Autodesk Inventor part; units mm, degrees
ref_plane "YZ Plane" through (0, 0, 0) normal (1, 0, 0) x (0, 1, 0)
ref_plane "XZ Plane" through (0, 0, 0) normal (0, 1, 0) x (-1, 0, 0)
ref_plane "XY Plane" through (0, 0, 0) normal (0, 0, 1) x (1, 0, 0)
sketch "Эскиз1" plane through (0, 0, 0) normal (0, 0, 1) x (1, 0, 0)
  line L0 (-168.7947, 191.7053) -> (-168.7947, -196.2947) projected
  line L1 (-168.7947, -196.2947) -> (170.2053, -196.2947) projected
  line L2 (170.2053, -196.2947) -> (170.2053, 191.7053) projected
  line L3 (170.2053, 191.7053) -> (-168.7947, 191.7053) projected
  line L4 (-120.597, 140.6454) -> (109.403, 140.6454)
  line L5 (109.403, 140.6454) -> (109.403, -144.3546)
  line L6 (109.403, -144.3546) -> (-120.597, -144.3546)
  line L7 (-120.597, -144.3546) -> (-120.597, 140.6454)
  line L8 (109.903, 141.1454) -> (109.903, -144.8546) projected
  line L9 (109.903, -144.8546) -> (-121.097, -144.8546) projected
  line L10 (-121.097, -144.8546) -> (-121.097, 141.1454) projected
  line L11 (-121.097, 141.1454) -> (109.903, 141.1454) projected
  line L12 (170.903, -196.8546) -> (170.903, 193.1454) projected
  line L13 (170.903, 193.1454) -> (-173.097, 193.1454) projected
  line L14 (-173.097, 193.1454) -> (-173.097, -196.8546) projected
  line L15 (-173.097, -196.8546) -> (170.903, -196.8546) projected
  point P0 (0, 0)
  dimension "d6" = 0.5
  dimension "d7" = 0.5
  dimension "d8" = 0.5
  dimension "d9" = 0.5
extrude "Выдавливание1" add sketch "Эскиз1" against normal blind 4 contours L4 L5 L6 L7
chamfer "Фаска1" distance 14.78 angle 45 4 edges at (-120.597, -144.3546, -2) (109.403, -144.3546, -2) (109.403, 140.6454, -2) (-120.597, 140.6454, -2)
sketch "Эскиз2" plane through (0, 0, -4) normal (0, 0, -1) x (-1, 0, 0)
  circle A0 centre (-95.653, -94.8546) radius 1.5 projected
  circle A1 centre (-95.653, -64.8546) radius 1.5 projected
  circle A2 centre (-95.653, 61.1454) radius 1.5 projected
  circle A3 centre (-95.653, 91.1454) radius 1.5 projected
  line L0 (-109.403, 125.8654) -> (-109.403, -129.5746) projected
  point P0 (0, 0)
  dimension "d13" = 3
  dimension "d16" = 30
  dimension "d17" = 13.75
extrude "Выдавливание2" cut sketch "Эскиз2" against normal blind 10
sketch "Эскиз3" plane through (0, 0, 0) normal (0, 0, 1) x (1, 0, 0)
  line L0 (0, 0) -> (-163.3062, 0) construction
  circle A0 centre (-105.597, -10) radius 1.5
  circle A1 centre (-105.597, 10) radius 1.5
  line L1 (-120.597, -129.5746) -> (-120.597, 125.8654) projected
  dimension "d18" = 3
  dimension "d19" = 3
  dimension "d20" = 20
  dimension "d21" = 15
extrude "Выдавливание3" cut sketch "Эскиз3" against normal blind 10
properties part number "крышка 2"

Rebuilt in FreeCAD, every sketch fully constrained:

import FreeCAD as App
import Part
import Sketcher
from FreeCAD import Vector


def edges_at(feature, points):
    """Names of the edges that pass closest to the given points."""
    edges = feature.Shape.Edges
    near = lambda p: min(range(len(edges)), key=lambda i: edges[i].distToShape(Part.Vertex(*p))[0])
    return sorted({f"Edge{near(p) + 1}" for p in points})

doc = App.newDocument("Part")
body = doc.addObject("PartDesign::Body", "Body")

sketch1 = doc.addObject("Sketcher::SketchObject", "Sketch")
body.addObject(sketch1)
sketch1.AttachmentSupport = (doc.XY_Plane, [""])
sketch1.MapMode = "FlatFace"
sketch1.addGeometry(Part.LineSegment(Vector(109, 141, 0), Vector(-121, 141, 0)), False)
sketch1.addGeometry(Part.LineSegment(Vector(-121, 141, 0), Vector(-121, -144, 0)), False)
sketch1.addGeometry(Part.LineSegment(Vector(-121, -144, 0), Vector(109, -144, 0)), False)
sketch1.addGeometry(Part.LineSegment(Vector(109, -144, 0), Vector(109, 141, 0)), False)
sketch1.addConstraint(Sketcher.Constraint("Coincident", 0, 2, 1, 1))
sketch1.addConstraint(Sketcher.Constraint("Coincident", 1, 2, 2, 1))
sketch1.addConstraint(Sketcher.Constraint("Coincident", 2, 2, 3, 1))
sketch1.addConstraint(Sketcher.Constraint("Coincident", 3, 2, 0, 1))
sketch1.addConstraint(Sketcher.Constraint("Horizontal", 0))
sketch1.addConstraint(Sketcher.Constraint("Vertical", 1))
sketch1.addConstraint(Sketcher.Constraint("Horizontal", 2))
sketch1.addConstraint(Sketcher.Constraint("Vertical", 3))
sketch1.addConstraint(Sketcher.Constraint("DistanceX", 0, 2, 0, 1, 230.0))
sketch1.addConstraint(Sketcher.Constraint("DistanceY", 1, 2, 1, 1, 285.0))
sketch1.addConstraint(Sketcher.Constraint("DistanceX", 0, 2, -1, 1, 120.597))
sketch1.addConstraint(Sketcher.Constraint("DistanceY", -1, 1, 0, 2, 140.6454))
pad1 = doc.addObject("PartDesign::Pad", "Pad")
body.addObject(pad1)
pad1.Profile = sketch1
pad1.Length = 4
pad1.Reversed = True
doc.recompute()

chamfer = doc.addObject("PartDesign::Chamfer", "Chamfer")
body.addObject(chamfer)
chamfer.Base = (pad1, edges_at(pad1, [
    (-120.597, -144.355, -2),
    (109.403, -144.355, -2),
    (109.403, 140.645, -2),
    (-120.597, 140.645, -2),
]))
chamfer.Size = 14.78

sketch2 = doc.addObject("Sketcher::SketchObject", "Sketch001")
body.addObject(sketch2)
sketch2.AttachmentSupport = (doc.XY_Plane, [""])
sketch2.MapMode = "FlatFace"
sketch2.AttachmentOffset = App.Placement(Vector(0, 0, -4), App.Rotation())
sketch2.addGeometry(Part.Circle(Vector(95.7, -94.9, 0), Vector(0, 0, 1), 1.5), False)
sketch2.addGeometry(Part.Circle(Vector(95.7, -64.9, 0), Vector(0, 0, 1), 1.5), False)
sketch2.addGeometry(Part.Circle(Vector(95.7, 61.1, 0), Vector(0, 0, 1), 1.5), False)
sketch2.addGeometry(Part.Circle(Vector(95.7, 91.1, 0), Vector(0, 0, 1), 1.5), False)
sketch2.addConstraint(Sketcher.Constraint("Equal", 0, 1))
sketch2.addConstraint(Sketcher.Constraint("Equal", 1, 2))
sketch2.addConstraint(Sketcher.Constraint("Equal", 2, 3))
sketch2.addConstraint(Sketcher.Constraint("Vertical", 0, 3, 1, 3))
sketch2.addConstraint(Sketcher.Constraint("Vertical", 1, 3, 2, 3))
sketch2.addConstraint(Sketcher.Constraint("Vertical", 2, 3, 3, 3))
sketch2.addConstraint(Sketcher.Constraint("Diameter", 0, 3.0))
sketch2.addConstraint(Sketcher.Constraint("DistanceY", 0, 3, 1, 3, 30.0))
sketch2.addConstraint(Sketcher.Constraint("DistanceY", 2, 3, 3, 3, 30.0))
sketch2.addConstraint(Sketcher.Constraint("DistanceY", 1, 3, 2, 3, 126.0))
sketch2.addConstraint(Sketcher.Constraint("DistanceX", -1, 1, 0, 3, 95.653))
sketch2.addConstraint(Sketcher.Constraint("DistanceY", 0, 3, -1, 1, 94.8546))
pocket1 = doc.addObject("PartDesign::Pocket", "Pocket")
body.addObject(pocket1)
pocket1.Profile = sketch2
pocket1.Length = 10
pocket1.Reversed = True

sketch3 = doc.addObject("Sketcher::SketchObject", "Sketch002")
body.addObject(sketch3)
sketch3.AttachmentSupport = (doc.XY_Plane, [""])
sketch3.MapMode = "FlatFace"
sketch3.addGeometry(Part.Circle(Vector(-105.6, -10, 0), Vector(0, 0, 1), 1.5), False)
sketch3.addGeometry(Part.Circle(Vector(-105.6, 10, 0), Vector(0, 0, 1), 1.5), False)
sketch3.addConstraint(Sketcher.Constraint("Equal", 0, 1))
sketch3.addConstraint(Sketcher.Constraint("Symmetric", 0, 3, 1, 3, -1))
sketch3.addConstraint(Sketcher.Constraint("Diameter", 0, 3.0))
sketch3.addConstraint(Sketcher.Constraint("DistanceY", 0, 3, 1, 3, 20.0))
sketch3.addConstraint(Sketcher.Constraint("DistanceX", 0, 3, -1, 1, 105.597))
pocket2 = doc.addObject("PartDesign::Pocket", "Pocket001")
body.addObject(pocket2)
pocket2.Profile = sketch3
pocket2.Length = 10

doc.recompute()
